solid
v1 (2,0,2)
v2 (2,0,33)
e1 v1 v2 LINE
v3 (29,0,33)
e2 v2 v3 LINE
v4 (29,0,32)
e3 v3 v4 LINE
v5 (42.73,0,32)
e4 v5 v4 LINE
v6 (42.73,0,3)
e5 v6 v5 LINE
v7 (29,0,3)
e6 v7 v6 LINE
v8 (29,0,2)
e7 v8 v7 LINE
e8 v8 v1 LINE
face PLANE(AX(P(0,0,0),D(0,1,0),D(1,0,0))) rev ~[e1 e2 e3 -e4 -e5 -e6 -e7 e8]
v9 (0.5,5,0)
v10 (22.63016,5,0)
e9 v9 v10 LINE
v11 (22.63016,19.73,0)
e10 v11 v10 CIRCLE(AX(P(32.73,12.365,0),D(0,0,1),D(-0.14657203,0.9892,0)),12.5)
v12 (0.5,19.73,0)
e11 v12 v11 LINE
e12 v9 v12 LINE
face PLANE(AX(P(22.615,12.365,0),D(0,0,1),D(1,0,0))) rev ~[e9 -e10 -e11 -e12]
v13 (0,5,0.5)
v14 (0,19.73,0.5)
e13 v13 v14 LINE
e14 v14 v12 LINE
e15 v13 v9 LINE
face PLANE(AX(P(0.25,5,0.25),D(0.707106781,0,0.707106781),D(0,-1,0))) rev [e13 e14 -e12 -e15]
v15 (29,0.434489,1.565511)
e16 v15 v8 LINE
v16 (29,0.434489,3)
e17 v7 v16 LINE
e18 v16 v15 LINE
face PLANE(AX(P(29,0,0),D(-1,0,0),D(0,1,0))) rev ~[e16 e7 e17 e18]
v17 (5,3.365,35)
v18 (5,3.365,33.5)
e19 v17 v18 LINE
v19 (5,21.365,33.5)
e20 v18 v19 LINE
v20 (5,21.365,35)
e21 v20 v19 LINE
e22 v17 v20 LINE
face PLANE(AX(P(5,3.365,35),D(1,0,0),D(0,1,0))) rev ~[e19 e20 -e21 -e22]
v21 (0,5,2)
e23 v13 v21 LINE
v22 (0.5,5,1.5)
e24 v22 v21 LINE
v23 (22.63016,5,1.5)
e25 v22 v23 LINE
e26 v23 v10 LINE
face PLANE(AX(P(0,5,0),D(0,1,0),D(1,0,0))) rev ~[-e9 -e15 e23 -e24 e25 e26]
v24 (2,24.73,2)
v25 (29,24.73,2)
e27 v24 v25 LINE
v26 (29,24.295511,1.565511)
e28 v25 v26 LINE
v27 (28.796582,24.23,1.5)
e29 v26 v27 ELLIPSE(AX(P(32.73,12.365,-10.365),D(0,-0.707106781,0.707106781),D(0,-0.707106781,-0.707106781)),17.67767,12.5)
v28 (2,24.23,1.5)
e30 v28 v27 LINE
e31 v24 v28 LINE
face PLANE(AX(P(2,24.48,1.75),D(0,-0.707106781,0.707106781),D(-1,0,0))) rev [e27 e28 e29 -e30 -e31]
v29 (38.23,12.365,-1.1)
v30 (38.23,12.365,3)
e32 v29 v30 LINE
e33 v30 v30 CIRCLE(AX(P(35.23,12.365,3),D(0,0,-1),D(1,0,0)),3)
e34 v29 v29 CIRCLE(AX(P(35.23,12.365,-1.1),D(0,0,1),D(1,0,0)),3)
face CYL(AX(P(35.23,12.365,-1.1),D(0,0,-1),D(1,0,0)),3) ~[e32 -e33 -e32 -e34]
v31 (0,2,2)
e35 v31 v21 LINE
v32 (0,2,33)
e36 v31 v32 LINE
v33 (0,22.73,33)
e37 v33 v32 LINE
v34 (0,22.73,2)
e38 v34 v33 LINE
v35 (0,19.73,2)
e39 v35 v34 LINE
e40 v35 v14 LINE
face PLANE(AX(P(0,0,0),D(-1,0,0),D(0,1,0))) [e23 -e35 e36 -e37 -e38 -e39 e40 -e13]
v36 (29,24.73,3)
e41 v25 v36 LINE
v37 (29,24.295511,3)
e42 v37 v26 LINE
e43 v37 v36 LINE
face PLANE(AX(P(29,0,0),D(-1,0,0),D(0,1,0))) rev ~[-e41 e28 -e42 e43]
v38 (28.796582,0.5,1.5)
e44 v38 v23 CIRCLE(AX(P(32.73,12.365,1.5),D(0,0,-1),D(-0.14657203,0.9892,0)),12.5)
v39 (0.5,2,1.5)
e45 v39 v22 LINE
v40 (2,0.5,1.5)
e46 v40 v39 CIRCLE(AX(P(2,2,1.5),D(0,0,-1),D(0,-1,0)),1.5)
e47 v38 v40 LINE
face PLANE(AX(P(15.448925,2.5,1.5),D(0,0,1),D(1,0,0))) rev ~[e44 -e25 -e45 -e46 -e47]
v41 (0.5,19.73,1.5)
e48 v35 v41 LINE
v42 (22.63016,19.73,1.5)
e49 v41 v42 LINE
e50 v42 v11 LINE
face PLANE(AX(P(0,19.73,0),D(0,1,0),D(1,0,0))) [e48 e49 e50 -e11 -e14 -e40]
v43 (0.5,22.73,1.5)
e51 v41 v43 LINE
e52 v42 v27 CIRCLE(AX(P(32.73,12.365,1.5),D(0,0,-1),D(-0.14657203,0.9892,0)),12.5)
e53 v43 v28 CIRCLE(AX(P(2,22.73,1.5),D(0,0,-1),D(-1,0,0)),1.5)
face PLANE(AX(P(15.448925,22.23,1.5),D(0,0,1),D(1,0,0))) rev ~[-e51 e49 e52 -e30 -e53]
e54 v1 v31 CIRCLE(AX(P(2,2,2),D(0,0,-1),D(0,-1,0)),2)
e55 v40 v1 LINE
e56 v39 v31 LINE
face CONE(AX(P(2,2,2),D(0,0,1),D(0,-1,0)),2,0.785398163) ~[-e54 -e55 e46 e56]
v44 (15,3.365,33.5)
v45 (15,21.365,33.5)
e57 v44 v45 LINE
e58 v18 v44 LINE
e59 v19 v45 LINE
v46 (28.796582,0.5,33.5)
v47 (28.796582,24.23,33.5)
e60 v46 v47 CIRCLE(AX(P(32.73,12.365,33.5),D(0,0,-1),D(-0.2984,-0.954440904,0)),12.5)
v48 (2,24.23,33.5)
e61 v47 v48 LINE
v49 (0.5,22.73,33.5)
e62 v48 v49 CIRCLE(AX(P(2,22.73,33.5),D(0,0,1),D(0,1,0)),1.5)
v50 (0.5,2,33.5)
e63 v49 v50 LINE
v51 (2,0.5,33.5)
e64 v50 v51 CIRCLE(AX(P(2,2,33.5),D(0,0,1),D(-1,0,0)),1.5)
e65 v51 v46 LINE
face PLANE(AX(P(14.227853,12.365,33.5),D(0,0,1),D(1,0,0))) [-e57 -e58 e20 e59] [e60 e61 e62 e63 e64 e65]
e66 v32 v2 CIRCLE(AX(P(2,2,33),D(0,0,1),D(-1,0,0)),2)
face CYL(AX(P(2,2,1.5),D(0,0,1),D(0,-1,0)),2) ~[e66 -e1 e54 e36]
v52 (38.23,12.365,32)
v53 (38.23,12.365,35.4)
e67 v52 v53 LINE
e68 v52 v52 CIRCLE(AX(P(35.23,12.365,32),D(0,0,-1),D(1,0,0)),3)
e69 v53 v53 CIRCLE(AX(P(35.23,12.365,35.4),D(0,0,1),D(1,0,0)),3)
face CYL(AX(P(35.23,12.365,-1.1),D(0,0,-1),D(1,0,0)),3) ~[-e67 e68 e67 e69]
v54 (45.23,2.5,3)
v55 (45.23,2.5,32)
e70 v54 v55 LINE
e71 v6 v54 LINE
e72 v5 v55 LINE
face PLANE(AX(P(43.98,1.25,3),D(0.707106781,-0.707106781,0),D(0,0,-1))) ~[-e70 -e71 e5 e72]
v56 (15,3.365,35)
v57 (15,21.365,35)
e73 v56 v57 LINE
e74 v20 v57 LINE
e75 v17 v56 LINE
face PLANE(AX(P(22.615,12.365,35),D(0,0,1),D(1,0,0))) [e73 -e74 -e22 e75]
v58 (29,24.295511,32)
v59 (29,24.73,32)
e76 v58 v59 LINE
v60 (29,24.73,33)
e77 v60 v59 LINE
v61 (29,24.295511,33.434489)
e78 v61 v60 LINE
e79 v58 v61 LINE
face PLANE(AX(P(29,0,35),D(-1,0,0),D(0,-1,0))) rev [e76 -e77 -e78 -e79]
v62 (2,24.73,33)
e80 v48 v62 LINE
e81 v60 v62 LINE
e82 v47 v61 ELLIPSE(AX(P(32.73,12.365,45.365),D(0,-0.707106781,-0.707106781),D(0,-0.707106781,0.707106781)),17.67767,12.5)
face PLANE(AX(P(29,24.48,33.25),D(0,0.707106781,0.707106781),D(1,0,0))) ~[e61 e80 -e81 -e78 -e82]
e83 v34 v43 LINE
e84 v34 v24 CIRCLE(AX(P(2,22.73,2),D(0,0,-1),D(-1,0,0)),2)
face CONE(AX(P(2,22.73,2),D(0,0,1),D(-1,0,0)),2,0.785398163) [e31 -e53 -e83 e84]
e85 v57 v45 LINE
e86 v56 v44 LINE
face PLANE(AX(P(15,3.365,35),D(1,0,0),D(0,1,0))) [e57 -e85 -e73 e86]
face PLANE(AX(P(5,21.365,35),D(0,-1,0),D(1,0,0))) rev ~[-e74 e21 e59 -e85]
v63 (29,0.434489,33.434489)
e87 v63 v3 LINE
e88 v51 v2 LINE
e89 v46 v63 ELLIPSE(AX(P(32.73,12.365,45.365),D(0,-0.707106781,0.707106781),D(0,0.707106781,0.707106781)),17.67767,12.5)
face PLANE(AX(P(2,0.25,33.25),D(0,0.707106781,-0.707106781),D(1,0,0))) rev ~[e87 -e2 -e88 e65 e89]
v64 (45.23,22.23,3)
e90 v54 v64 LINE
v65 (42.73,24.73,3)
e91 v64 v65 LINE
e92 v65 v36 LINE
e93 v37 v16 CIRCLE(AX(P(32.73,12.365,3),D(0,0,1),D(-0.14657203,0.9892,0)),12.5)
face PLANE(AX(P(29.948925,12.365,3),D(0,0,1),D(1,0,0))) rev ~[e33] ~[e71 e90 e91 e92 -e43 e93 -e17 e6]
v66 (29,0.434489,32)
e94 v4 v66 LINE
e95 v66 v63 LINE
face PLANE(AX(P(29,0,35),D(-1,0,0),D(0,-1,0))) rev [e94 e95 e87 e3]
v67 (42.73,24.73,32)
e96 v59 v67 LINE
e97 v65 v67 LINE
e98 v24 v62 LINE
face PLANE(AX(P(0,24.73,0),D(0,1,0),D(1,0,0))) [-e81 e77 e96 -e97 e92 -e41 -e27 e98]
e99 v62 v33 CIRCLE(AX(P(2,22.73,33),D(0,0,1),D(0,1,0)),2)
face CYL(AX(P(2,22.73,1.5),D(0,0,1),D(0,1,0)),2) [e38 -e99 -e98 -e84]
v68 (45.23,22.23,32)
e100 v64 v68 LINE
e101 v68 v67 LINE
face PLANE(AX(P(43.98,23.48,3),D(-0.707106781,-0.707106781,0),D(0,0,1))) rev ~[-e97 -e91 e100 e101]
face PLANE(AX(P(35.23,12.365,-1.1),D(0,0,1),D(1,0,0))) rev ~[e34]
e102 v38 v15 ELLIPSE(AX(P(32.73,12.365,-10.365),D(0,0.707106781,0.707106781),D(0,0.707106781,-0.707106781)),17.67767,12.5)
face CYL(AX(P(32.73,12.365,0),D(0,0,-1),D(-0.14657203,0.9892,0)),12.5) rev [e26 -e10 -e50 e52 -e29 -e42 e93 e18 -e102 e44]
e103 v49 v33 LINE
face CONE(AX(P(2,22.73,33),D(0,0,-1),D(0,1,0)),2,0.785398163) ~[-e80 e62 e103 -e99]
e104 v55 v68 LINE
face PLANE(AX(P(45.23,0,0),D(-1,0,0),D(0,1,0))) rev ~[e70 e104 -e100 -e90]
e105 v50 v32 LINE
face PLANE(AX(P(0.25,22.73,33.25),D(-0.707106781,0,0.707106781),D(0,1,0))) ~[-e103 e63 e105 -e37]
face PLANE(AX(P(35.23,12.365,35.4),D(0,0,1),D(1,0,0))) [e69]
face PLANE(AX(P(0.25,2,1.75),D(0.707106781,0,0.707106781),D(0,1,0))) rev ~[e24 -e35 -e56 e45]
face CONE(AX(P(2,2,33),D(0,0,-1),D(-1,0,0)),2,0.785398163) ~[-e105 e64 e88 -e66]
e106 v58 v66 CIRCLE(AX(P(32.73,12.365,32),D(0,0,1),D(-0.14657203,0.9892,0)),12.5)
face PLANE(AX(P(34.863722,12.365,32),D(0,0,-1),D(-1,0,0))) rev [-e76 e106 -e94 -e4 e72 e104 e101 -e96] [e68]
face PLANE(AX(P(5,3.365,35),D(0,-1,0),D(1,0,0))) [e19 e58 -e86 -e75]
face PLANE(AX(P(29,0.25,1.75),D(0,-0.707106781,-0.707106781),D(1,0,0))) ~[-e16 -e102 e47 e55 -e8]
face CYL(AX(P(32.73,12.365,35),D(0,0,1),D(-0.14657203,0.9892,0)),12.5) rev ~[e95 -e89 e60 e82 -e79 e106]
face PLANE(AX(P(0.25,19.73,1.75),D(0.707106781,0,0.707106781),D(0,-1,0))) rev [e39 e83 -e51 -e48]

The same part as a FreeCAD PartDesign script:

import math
import FreeCAD as App
import Part
import Sketcher

V = App.Vector


def edges_at(feature, points):
    """Names of the edges that pass closest to the given points."""
    edges = feature.Shape.Edges
    near = lambda p: min(range(len(edges)), key=lambda i: edges[i].distToShape(Part.Vertex(*p))[0])
    return sorted({f"Edge{near(p) + 1}" for p in points})

doc = App.newDocument("Part")
body = doc.addObject("PartDesign::Body", "Body")

# Sketch on XY plane
sketch1 = body.newObject("Sketcher::SketchObject", "Sketch")
sketch1.AttachmentSupport = (doc.getObject("XY_Plane"), [""])
sketch1.MapMode = "FlatFace"
sketch1.addGeometry(Part.LineSegment(V(0, 25, 0), V(0, 0, 0)), False)
sketch1.addGeometry(Part.LineSegment(V(0, 0, 0), V(45, 0, 0)), False)
sketch1.addGeometry(Part.LineSegment(V(45, 0, 0), V(45, 25, 0)), False)
sketch1.addGeometry(Part.LineSegment(V(45, 25, 0), V(0, 25, 0)), False)
sketch1.addConstraint(Sketcher.Constraint("Coincident", 0, 2, 1, 1))
sketch1.addConstraint(Sketcher.Constraint("Coincident", 1, 2, 2, 1))
sketch1.addConstraint(Sketcher.Constraint("Coincident", 2, 2, 3, 1))
sketch1.addConstraint(Sketcher.Constraint("Coincident", 3, 2, 0, 1))
sketch1.addConstraint(Sketcher.Constraint("Vertical", 0))
sketch1.addConstraint(Sketcher.Constraint("Horizontal", 1))
sketch1.addConstraint(Sketcher.Constraint("Vertical", 2))
sketch1.addConstraint(Sketcher.Constraint("Horizontal", 3))
sketch1.addConstraint(Sketcher.Constraint("Coincident", 0, 2, -1, 1))
sketch1.addConstraint(Sketcher.Constraint("DistanceX", 1, 1, 1, 2, 45.23))
sketch1.addConstraint(Sketcher.Constraint("DistanceY", 0, 2, 0, 1, 24.73))
pad1 = body.newObject("PartDesign::Pad", "Pad")
pad1.Profile = sketch1
pad1.Length = 35

# Sketch on XY plane
sketch2 = body.newObject("Sketcher::SketchObject", "Sketch001")
sketch2.AttachmentSupport = (doc.getObject("XY_Plane"), [""])
sketch2.MapMode = "FlatFace"
sketch2.addGeometry(Part.LineSegment(V(45, 25, 0), V(31, 25, 0)), False)
sketch2.addGeometry(Part.ArcOfCircle(Part.Circle(V(33, 12, 0), V(0, 0, 1), 12), math.radians(98), math.radians(262)), False)
sketch2.addGeometry(Part.LineSegment(V(31, 0, 0), V(45, 0, 0)), False)
sketch2.addGeometry(Part.LineSegment(V(45, 0, 0), V(45, 25, 0)), False)
sketch2.addConstraint(Sketcher.Constraint("Coincident", 0, 2, 1, 1))
sketch2.addConstraint(Sketcher.Constraint("Coincident", 1, 2, 2, 1))
sketch2.addConstraint(Sketcher.Constraint("Coincident", 2, 2, 3, 1))
sketch2.addConstraint(Sketcher.Constraint("Coincident", 3, 2, 0, 1))
sketch2.addConstraint(Sketcher.Constraint("Horizontal", 0))
sketch2.addConstraint(Sketcher.Constraint("Horizontal", 2))
sketch2.addConstraint(Sketcher.Constraint("Vertical", 3))
sketch2.addConstraint(Sketcher.Constraint("PointOnObject", 1, 2, -1))
sketch2.addConstraint(Sketcher.Constraint("Vertical", 0, 2, 1, 2))
sketch2.addConstraint(Sketcher.Constraint("Radius", 1, 12.5))
sketch2.addConstraint(Sketcher.Constraint("DistanceY", 3, 1, 3, 2, 24.73))
sketch2.addConstraint(Sketcher.Constraint("DistanceX", 1, 3, 2, 2, 12.5))
sketch2.addConstraint(Sketcher.Constraint("DistanceX", -1, 1, 1, 3, 32.73))
pocket1 = body.newObject("PartDesign::Pocket", "Pocket")
pocket1.Profile = sketch2
pocket1.Length = 3
pocket1.Reversed = True

# Sketch on XY plane
sketch3 = body.newObject("Sketcher::SketchObject", "Sketch002")
sketch3.AttachmentSupport = (doc.getObject("XY_Plane"), [""])
sketch3.MapMode = "FlatFace"
sketch3.addGeometry(Part.LineSegment(V(29, 24.7, 0), V(29, 0, 0)), False)
sketch3.addGeometry(Part.LineSegment(V(29, 0, 0), V(30.9, 0, 0)), False)
sketch3.addGeometry(Part.LineSegment(V(30.9, 0, 0), V(30.9, 24.7, 0)), False)
sketch3.addGeometry(Part.LineSegment(V(30.9, 24.7, 0), V(29, 24.7, 0)), False)
sketch3.addConstraint(Sketcher.Constraint("Coincident", 0, 2, 1, 1))
sketch3.addConstraint(Sketcher.Constraint("Coincident", 1, 2, 2, 1))
sketch3.addConstraint(Sketcher.Constraint("Coincident", 2, 2, 3, 1))
sketch3.addConstraint(Sketcher.Constraint("Coincident", 3, 2, 0, 1))
sketch3.addConstraint(Sketcher.Constraint("Vertical", 0))
sketch3.addConstraint(Sketcher.Constraint("Horizontal", 1))
sketch3.addConstraint(Sketcher.Constraint("Vertical", 2))
sketch3.addConstraint(Sketcher.Constraint("Horizontal", 3))
sketch3.addConstraint(Sketcher.Constraint("PointOnObject", 0, 2, -1))
sketch3.addConstraint(Sketcher.Constraint("DistanceX", -1, 1, 0, 2, 29.0))
sketch3.addConstraint(Sketcher.Constraint("DistanceY", 0, 2, 0, 1, 24.73))
sketch3.addConstraint(Sketcher.Constraint("DistanceX", 1, 1, 1, 2, 1.89785))
pocket2 = body.newObject("PartDesign::Pocket", "Pocket001")
pocket2.Profile = sketch3
pocket2.Length = 3
pocket2.Reversed = True
doc.recompute()

datumplane = body.newObject("PartDesign::Plane", "DatumPlane")
datumplane.AttachmentSupport = (doc.getObject("XY_Plane"), [""])
datumplane.MapMode = "FlatFace"
datumplane.AttachmentOffset = App.Placement(V(0, 0, 17.5), App.Rotation())
mirrored = body.newObject("PartDesign::Mirrored", "Mirrored")
mirrored.Originals = [pocket1, pocket2]
mirrored.MirrorPlane = (datumplane, [""])
body.Tip = mirrored

# Sketch on XY plane
sketch4 = body.newObject("Sketcher::SketchObject", "Sketch003")
sketch4.AttachmentSupport = (doc.getObject("XY_Plane"), [""])
sketch4.MapMode = "FlatFace"
sketch4.AttachmentOffset = App.Placement(V(0, 0, 17.5), App.Rotation())
sketch4.addGeometry(Part.Circle(V(35.2, 12.4, 0), V(0, 0, 1), 3), False)
sketch4.addConstraint(Sketcher.Constraint("Diameter", 0, 6.0))
sketch4.addConstraint(Sketcher.Constraint("DistanceX", -1, 1, 0, 3, 35.23))
sketch4.addConstraint(Sketcher.Constraint("DistanceY", -1, 1, 0, 3, 12.365))
pad2 = body.newObject("PartDesign::Pad", "Pad001")
pad2.Profile = sketch4
pad2.Type = "TwoLengths"
pad2.Length = 17.9
pad2.Length2 = 18.6

# Sketch on XY plane
sketch5 = body.newObject("Sketcher::SketchObject", "Sketch004")
sketch5.AttachmentSupport = (doc.getObject("XY_Plane"), [""])
sketch5.MapMode = "FlatFace"
sketch5.addGeometry(Part.LineSegment(V(0, 25, 0), V(0, 20, 0)), False)
sketch5.addGeometry(Part.LineSegment(V(0, 20, 0), V(31, 20, 0)), False)
sketch5.addGeometry(Part.LineSegment(V(31, 20, 0), V(31, 25, 0)), False)
sketch5.addGeometry(Part.LineSegment(V(31, 25, 0), V(0, 25, 0)), False)
sketch5.addGeometry(Part.LineSegment(V(0, 5, 0), V(0, 0, 0)), False)
sketch5.addGeometry(Part.LineSegment(V(0, 0, 0), V(31, 0, 0)), False)
sketch5.addGeometry(Part.LineSegment(V(31, 0, 0), V(31, 5, 0)), False)
sketch5.addGeometry(Part.LineSegment(V(31, 5, 0), V(0, 5, 0)), False)
sketch5.addConstraint(Sketcher.Constraint("Coincident", 0, 2, 1, 1))
sketch5.addConstraint(Sketcher.Constraint("Coincident", 1, 2, 2, 1))
sketch5.addConstraint(Sketcher.Constraint("Coincident", 2, 2, 3, 1))
sketch5.addConstraint(Sketcher.Constraint("Coincident", 3, 2, 0, 1))
sketch5.addConstraint(Sketcher.Constraint("Coincident", 4, 2, 5, 1))
sketch5.addConstraint(Sketcher.Constraint("Coincident", 5, 2, 6, 1))
sketch5.addConstraint(Sketcher.Constraint("Coincident", 6, 2, 7, 1))
sketch5.addConstraint(Sketcher.Constraint("Coincident", 7, 2, 4, 1))
sketch5.addConstraint(Sketcher.Constraint("Vertical", 0))
sketch5.addConstraint(Sketcher.Constraint("Horizontal", 1))
sketch5.addConstraint(Sketcher.Constraint("Vertical", 2))
sketch5.addConstraint(Sketcher.Constraint("Horizontal", 3))
sketch5.addConstraint(Sketcher.Constraint("Vertical", 4))
sketch5.addConstraint(Sketcher.Constraint("Horizontal", 5))
sketch5.addConstraint(Sketcher.Constraint("Vertical", 6))
sketch5.addConstraint(Sketcher.Constraint("Horizontal", 7))
sketch5.addConstraint(Sketcher.Constraint("Coincident", 4, 2, -1, 1))
sketch5.addConstraint(Sketcher.Constraint("PointOnObject", 0, 2, -2))
sketch5.addConstraint(Sketcher.Constraint("Vertical", 2, 2, 5, 2))
sketch5.addConstraint(Sketcher.Constraint("Equal", 2, 4))
sketch5.addConstraint(Sketcher.Constraint("DistanceY", 0, 2, 0, 1, 5.0))
sketch5.addConstraint(Sketcher.Constraint("DistanceY", -1, 1, 0, 2, 19.73))
sketch5.addConstraint(Sketcher.Constraint("DistanceX", 1, 1, 1, 2, 30.89785))
pocket3 = body.newObject("PartDesign::Pocket", "Pocket002")
pocket3.Profile = sketch5
pocket3.Length = 1.5
pocket3.Reversed = True
doc.recompute()

chamfer = body.newObject("PartDesign::Chamfer", "Chamfer")
chamfer.Base = (pocket3, edges_at(pocket3, [(45.23, 0, 17.5), (45.23, 24.73, 17.5)]))
chamfer.Size = 2.5
doc.recompute()

fillet = body.newObject("PartDesign::Fillet", "Fillet")
fillet.Base = (chamfer, edges_at(chamfer, [(0, 24.73, 18.25), (0, 0, 18.25)]))
fillet.Radius = 2

# Sketch on XY plane
sketch6 = body.newObject("Sketcher::SketchObject", "Sketch005")
sketch6.AttachmentSupport = (doc.getObject("XY_Plane"), [""])
sketch6.MapMode = "FlatFace"
sketch6.AttachmentOffset = App.Placement(V(0, 0, 35), App.Rotation())
sketch6.addGeometry(Part.LineSegment(V(29, 24.73, 0), V(2, 24.73, 0)), False)
sketch6.addGeometry(Part.ArcOfCircle(Part.Circle(V(2, 22.73, 0), V(0, 0, 1), 2), math.radians(90), math.radians(180)), False)
sketch6.addGeometry(Part.LineSegment(V(0, 22.73, 0), V(0, 2, 0)), False)
sketch6.addGeometry(Part.ArcOfCircle(Part.Circle(V(2, 2, 0), V(0, 0, 1), 2), math.radians(-180), math.radians(-90)), False)
sketch6.addGeometry(Part.LineSegment(V(2, 0, 0), V(29, 0, 0)), False)
sketch6.addGeometry(Part.LineSegment(V(29, 0, 0), V(29, 0.43, 0)), False)
sketch6.addGeometry(Part.ArcOfCircle(Part.Circle(V(32.73, 12.37, 0), V(0, 0, 1), 12.5), math.radians(107), math.radians(253)), False)
sketch6.addGeometry(Part.LineSegment(V(29, 24.3, 0), V(29, 24.73, 0)), False)
sketch6.addGeometry(Part.LineSegment(V(15, 3.37, 0), V(5, 3.37, 0)), False)
sketch6.addGeometry(Part.LineSegment(V(5, 3.37, 0), V(5, 21.36, 0)), False)
sketch6.addGeometry(Part.LineSegment(V(5, 21.36, 0), V(15, 21.36, 0)), False)
sketch6.addGeometry(Part.LineSegment(V(15, 21.36, 0), V(15, 3.37, 0)), False)
sketch6.addConstraint(Sketcher.Constraint("Tangent", 0, 2, 1, 1))
sketch6.addConstraint(Sketcher.Constraint("Tangent", 1, 2, 2, 1))
sketch6.addConstraint(Sketcher.Constraint("Tangent", 2, 2, 3, 1))
sketch6.addConstraint(Sketcher.Constraint("Tangent", 3, 2, 4, 1))
sketch6.addConstraint(Sketcher.Constraint("Coincident", 4, 2, 5, 1))
sketch6.addConstraint(Sketcher.Constraint("Coincident", 5, 2, 6, 2))
sketch6.addConstraint(Sketcher.Constraint("Coincident", 6, 1, 7, 1))
sketch6.addConstraint(Sketcher.Constraint("Coincident", 7, 2, 0, 1))
sketch6.addConstraint(Sketcher.Constraint("Coincident", 8, 2, 9, 1))
sketch6.addConstraint(Sketcher.Constraint("Coincident", 9, 2, 10, 1))
sketch6.addConstraint(Sketcher.Constraint("Coincident", 10, 2, 11, 1))
sketch6.addConstraint(Sketcher.Constraint("Coincident", 11, 2, 8, 1))
sketch6.addConstraint(Sketcher.Constraint("Horizontal", 0))
sketch6.addConstraint(Sketcher.Constraint("Vertical", 2))
sketch6.addConstraint(Sketcher.Constraint("Horizontal", 4))
sketch6.addConstraint(Sketcher.Constraint("Vertical", 5))
sketch6.addConstraint(Sketcher.Constraint("Vertical", 7))
sketch6.addConstraint(Sketcher.Constraint("Horizontal", 8))
sketch6.addConstraint(Sketcher.Constraint("Vertical", 9))
sketch6.addConstraint(Sketcher.Constraint("Horizontal", 10))
sketch6.addConstraint(Sketcher.Constraint("Vertical", 11))
sketch6.addConstraint(Sketcher.Constraint("Equal", 1, 3))
sketch6.addConstraint(Sketcher.Constraint("PointOnObject", 1, 2, -2))
sketch6.addConstraint(Sketcher.Constraint("PointOnObject", 3, 2, -1))
sketch6.addConstraint(Sketcher.Constraint("Vertical", 5, 2, 6, 1))
sketch6.addConstraint(Sketcher.Constraint("Equal", 5, 7))
sketch6.addConstraint(Sketcher.Constraint("Radius", 1, 2.0))
sketch6.addConstraint(Sketcher.Constraint("Radius", 6, 12.5))
sketch6.addConstraint(Sketcher.Constraint("DistanceX", 0, 2, 0, 1, 27.0))
sketch6.addConstraint(Sketcher.Constraint("DistanceX", 8, 2, 8, 1, 10.0))
sketch6.addConstraint(Sketcher.Constraint("DistanceY", 9, 1, 9, 2, 18.0))
sketch6.addConstraint(Sketcher.Constraint("DistanceX", -1, 1, 8, 2, 5.0))
sketch6.addConstraint(Sketcher.Constraint("DistanceY", 2, 2, 2, 1, 20.73))
sketch6.addConstraint(Sketcher.Constraint("DistanceX", -1, 1, 6, 3, 32.73))
sketch6.addConstraint(Sketcher.Constraint("DistanceY", -1, 1, 8, 2, 3.365))
pocket4 = body.newObject("PartDesign::Pocket", "Pocket003")
pocket4.Profile = sketch6
pocket4.Length = 1.5
doc.recompute()

chamfer2 = body.newObject("PartDesign::Chamfer", "Chamfer001")
chamfer2.Base = (pocket4, edges_at(pocket4, [
    (0, 21.23, 1.5),
    (15.5, 24.73, 1.5),
    (0, 12.365, 0),
    (0, 3.5, 1.5),
    (15.5, 0, 1.5),
    (15.5, 24.73, 33.5),
    (15.5, 0, 33.5),
]))
chamfer2.Size = 0.5

doc.recompute()
